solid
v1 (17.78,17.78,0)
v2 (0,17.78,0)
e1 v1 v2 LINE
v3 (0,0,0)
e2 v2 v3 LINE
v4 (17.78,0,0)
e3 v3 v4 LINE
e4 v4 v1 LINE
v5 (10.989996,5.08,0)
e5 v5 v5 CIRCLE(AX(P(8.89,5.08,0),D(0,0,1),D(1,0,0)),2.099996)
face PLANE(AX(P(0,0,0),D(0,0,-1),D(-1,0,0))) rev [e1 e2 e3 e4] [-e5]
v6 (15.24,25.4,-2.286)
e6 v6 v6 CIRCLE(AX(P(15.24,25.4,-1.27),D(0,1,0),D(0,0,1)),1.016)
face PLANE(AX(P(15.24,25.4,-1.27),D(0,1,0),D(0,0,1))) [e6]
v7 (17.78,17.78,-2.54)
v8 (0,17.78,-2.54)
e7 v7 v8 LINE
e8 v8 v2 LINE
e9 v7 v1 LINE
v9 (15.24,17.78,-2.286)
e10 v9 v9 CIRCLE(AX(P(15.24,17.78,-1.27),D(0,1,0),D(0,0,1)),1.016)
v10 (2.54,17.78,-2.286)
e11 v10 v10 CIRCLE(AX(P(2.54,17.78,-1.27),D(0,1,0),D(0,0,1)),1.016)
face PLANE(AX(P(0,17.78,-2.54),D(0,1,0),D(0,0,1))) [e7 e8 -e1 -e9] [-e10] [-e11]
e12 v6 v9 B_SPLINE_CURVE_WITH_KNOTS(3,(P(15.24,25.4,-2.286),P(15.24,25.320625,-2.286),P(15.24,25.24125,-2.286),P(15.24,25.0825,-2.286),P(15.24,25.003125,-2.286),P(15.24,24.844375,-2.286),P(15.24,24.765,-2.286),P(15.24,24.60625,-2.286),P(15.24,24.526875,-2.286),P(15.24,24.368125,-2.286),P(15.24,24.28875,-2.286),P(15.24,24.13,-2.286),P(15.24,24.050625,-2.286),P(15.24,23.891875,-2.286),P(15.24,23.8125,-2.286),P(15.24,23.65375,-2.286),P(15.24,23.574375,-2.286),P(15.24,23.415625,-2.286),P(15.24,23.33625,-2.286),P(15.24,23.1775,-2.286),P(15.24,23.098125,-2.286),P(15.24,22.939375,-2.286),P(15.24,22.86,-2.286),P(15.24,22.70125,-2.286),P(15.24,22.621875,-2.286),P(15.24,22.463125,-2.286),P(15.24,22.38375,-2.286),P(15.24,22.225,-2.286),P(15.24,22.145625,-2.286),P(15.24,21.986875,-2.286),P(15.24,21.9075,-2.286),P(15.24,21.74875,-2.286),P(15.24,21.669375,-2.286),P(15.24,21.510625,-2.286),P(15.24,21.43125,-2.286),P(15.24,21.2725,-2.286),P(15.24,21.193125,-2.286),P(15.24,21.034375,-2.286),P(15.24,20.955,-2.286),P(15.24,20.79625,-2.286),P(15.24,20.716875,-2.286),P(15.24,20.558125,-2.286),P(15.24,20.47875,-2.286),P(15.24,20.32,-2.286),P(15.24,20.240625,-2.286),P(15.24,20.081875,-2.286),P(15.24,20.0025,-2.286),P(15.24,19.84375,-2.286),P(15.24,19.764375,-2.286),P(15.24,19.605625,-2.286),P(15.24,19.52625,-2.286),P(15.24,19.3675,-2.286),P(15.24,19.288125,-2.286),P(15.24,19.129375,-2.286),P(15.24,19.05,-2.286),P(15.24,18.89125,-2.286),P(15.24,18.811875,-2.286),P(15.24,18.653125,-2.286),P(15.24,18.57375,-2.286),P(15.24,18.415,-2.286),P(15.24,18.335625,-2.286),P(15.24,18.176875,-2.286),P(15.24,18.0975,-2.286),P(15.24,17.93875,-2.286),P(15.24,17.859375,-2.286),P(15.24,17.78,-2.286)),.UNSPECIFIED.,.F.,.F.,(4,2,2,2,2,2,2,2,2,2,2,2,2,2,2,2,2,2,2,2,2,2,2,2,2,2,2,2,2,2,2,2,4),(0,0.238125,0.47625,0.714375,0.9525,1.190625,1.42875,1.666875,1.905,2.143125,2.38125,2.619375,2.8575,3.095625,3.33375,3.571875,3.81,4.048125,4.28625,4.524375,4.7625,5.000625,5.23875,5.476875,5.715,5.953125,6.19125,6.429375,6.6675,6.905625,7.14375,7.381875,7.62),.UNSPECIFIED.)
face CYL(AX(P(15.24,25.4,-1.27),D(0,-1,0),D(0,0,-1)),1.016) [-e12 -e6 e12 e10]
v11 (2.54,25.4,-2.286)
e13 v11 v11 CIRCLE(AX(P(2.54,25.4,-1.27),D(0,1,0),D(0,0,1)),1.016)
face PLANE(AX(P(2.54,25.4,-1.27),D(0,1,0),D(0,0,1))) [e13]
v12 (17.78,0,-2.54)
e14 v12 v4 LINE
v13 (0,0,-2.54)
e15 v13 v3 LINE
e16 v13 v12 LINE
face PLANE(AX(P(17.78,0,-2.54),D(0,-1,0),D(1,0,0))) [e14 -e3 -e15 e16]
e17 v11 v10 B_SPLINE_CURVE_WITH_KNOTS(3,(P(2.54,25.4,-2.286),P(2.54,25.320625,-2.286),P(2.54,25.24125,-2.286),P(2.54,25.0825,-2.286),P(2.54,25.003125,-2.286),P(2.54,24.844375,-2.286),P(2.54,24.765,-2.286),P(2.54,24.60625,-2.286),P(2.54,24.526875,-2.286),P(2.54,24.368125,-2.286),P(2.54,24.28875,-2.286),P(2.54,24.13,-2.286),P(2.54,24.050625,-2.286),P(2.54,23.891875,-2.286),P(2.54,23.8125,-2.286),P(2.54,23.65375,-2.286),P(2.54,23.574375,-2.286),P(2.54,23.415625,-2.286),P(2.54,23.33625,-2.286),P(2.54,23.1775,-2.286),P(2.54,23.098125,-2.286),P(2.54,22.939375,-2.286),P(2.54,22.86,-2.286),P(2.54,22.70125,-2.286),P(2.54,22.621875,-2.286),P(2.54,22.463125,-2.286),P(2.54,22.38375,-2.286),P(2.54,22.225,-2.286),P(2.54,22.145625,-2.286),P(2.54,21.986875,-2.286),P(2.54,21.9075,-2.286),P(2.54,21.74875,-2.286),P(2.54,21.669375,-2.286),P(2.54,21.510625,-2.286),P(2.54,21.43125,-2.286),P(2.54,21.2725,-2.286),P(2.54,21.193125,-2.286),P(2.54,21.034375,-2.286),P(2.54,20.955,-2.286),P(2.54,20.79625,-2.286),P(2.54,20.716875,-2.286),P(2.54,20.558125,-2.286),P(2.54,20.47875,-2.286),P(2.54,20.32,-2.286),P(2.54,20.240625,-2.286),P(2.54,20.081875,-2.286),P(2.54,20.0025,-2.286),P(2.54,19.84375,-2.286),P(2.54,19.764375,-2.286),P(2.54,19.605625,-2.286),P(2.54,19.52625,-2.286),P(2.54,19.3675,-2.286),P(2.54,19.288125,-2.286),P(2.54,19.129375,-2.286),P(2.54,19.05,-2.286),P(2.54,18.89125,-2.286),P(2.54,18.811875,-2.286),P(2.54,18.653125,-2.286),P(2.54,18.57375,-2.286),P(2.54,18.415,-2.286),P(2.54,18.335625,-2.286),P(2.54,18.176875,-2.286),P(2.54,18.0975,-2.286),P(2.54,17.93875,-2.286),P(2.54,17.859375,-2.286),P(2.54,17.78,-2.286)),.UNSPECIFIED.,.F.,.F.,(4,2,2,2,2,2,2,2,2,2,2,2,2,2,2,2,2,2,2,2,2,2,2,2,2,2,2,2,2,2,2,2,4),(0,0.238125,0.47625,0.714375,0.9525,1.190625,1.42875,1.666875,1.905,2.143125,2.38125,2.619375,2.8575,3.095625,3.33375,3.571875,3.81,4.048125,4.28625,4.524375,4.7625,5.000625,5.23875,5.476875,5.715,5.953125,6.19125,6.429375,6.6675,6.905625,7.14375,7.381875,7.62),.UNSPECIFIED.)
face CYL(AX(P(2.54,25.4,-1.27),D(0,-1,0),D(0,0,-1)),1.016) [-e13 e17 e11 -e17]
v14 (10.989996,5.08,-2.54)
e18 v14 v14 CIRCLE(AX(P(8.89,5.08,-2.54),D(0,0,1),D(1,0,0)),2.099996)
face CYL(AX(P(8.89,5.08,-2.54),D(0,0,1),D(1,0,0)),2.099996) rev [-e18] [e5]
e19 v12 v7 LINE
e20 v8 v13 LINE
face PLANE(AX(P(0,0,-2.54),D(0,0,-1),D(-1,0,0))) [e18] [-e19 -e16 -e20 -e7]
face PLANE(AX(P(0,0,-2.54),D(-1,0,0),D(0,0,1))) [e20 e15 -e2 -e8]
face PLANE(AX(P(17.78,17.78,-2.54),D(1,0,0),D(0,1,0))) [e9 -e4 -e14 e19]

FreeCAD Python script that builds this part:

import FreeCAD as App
import Part
import Sketcher
from FreeCAD import Vector
Q = App.Units.Quantity

doc = App.newDocument("Part")
body = doc.addObject("PartDesign::Body", "Body")

# Sketch on XY plane
sketch1 = body.newObject("Sketcher::SketchObject", "Sketch")
sketch1.AttachmentSupport = (doc.getObject("XY_Plane"), [""])
sketch1.MapMode = "FlatFace"
sketch1.addGeometry(Part.LineSegment(Vector(0, 17.8, 0), Vector(0, 0, 0)), False)
sketch1.addGeometry(Part.LineSegment(Vector(0, 0, 0), Vector(17.8, 0, 0)), False)
sketch1.addGeometry(Part.LineSegment(Vector(17.8, 0, 0), Vector(17.8, 17.8, 0)), False)
sketch1.addGeometry(Part.LineSegment(Vector(17.8, 17.8, 0), Vector(0, 17.8, 0)), False)
sketch1.addGeometry(Part.Circle(Vector(8.9, 5.1, 0), Vector(0, 0, 1), 2.1), False)
sketch1.addConstraint(Sketcher.Constraint("Coincident", 0, 2, 1, 1))
sketch1.addConstraint(Sketcher.Constraint("Coincident", 1, 2, 2, 1))
sketch1.addConstraint(Sketcher.Constraint("Coincident", 2, 2, 3, 1))
sketch1.addConstraint(Sketcher.Constraint("Coincident", 3, 2, 0, 1))
sketch1.addConstraint(Sketcher.Constraint("Vertical", 0))
sketch1.addConstraint(Sketcher.Constraint("Horizontal", 1))
sketch1.addConstraint(Sketcher.Constraint("Vertical", 2))
sketch1.addConstraint(Sketcher.Constraint("Horizontal", 3))
sketch1.addConstraint(Sketcher.Constraint("Coincident", 0, 2, -1, 1))
sketch1.addConstraint(Sketcher.Constraint("Equal", 3, 0))
sketch1.addConstraint(Sketcher.Constraint("DistanceX", 1, 1, 1, 2, Q("0.7 in")))
sketch1.addConstraint(Sketcher.Constraint("DistanceY", -1, 1, 4, 3, Q("0.2 in")))
sketch1.addConstraint(Sketcher.Constraint("DistanceX", -1, 1, 4, 3, Q("0.35 in")))
sketch1.addConstraint(Sketcher.Constraint("Diameter", 4, 4.199992))
pad1 = body.newObject("PartDesign::Pad", "Pad")
pad1.Profile = sketch1
pad1.Length = Q("0.1 in")
pad1.Reversed = True

# Sketch on XZ plane
sketch2 = body.newObject("Sketcher::SketchObject", "Sketch001")
sketch2.AttachmentSupport = (doc.getObject("XZ_Plane"), [""])
sketch2.MapMode = "FlatFace"
sketch2.AttachmentOffset = App.Placement(Vector(0, 0, -0.7 * 25.4), App.Rotation())
sketch2.addGeometry(Part.Circle(Vector(2.5, -1.3, 0), Vector(0, 0, 1), 1), False)
sketch2.addGeometry(Part.Circle(Vector(15.2, -1.3, 0), Vector(0, 0, 1), 1), False)
sketch2.addConstraint(Sketcher.Constraint("Equal", 0, 1))
sketch2.addConstraint(Sketcher.Constraint("Horizontal", 0, 3, 1, 3))
sketch2.addConstraint(Sketcher.Constraint("Diameter", 0, Q("0.08 in")))
sketch2.addConstraint(Sketcher.Constraint("DistanceX", -1, 1, 0, 3, Q("0.1 in")))
sketch2.addConstraint(Sketcher.Constraint("DistanceX", -1, 1, 1, 3, Q("0.6 in")))
sketch2.addConstraint(Sketcher.Constraint("DistanceY", 0, 3, -1, 1, Q("0.05 in")))
pad2 = body.newObject("PartDesign::Pad", "Pad001")
pad2.Profile = sketch2
pad2.Length = Q("0.3 in")
pad2.Reversed = True

doc.recompute()
